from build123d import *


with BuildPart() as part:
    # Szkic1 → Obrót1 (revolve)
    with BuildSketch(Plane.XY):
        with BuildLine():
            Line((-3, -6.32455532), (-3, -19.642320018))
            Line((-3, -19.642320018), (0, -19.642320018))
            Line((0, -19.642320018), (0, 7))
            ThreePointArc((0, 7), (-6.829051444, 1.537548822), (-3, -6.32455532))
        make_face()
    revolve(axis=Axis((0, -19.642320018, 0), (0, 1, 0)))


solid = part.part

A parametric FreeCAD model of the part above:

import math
import FreeCAD as App
import Part
import Sketcher

doc = App.newDocument("Part")
body = doc.addObject("PartDesign::Body", "Body")

# Sketch on XY plane
sketch1 = doc.addObject("Sketcher::SketchObject", "Sketch")
body.addObject(sketch1)
sketch1.AttachmentSupport = (doc.XY_Plane, [""])
sketch1.MapMode = "FlatFace"
sketch1.addGeometry([
    Part.LineSegment(App.Vector(-3, -6.3, 0), App.Vector(-3, -19.6, 0)),
    Part.LineSegment(App.Vector(-3, -19.6, 0), App.Vector(0, -19.6, 0)),
    Part.LineSegment(App.Vector(0, -19.6, 0), App.Vector(0, 7, 0)),
    Part.ArcOfCircle(Part.Circle(App.Vector(0, 0, 0), App.Vector(0, 0, 1), 7), math.radians(90), math.radians(245)),
], False)
sketch1.addConstraint([
    Sketcher.Constraint("Coincident", 0, 2, 1, 1),
    Sketcher.Constraint("Coincident", 1, 2, 2, 1),
    Sketcher.Constraint("Coincident", 2, 2, 3, 1),
    Sketcher.Constraint("Coincident", 3, 2, 0, 1),
    Sketcher.Constraint("Vertical", 0),
    Sketcher.Constraint("Horizontal", 1),
    Sketcher.Constraint("Vertical", 2),
    Sketcher.Constraint("Coincident", 3, 3, -1, 1),
    Sketcher.Constraint("PointOnObject", 1, 2, -2),
    Sketcher.Constraint("Radius", 3, 7.0),
    Sketcher.Constraint("DistanceX", 1, 1, 1, 2, 3.0),
    Sketcher.Constraint("DistanceY", 2, 1, 2, 2, 26.64232),
])
revolution = doc.addObject("PartDesign::Revolution", "Revolution")
body.addObject(revolution)
revolution.Profile = sketch1
revolution.ReferenceAxis = (sketch1, ["V_Axis"])
revolution.Angle = 360

doc.recompute()
